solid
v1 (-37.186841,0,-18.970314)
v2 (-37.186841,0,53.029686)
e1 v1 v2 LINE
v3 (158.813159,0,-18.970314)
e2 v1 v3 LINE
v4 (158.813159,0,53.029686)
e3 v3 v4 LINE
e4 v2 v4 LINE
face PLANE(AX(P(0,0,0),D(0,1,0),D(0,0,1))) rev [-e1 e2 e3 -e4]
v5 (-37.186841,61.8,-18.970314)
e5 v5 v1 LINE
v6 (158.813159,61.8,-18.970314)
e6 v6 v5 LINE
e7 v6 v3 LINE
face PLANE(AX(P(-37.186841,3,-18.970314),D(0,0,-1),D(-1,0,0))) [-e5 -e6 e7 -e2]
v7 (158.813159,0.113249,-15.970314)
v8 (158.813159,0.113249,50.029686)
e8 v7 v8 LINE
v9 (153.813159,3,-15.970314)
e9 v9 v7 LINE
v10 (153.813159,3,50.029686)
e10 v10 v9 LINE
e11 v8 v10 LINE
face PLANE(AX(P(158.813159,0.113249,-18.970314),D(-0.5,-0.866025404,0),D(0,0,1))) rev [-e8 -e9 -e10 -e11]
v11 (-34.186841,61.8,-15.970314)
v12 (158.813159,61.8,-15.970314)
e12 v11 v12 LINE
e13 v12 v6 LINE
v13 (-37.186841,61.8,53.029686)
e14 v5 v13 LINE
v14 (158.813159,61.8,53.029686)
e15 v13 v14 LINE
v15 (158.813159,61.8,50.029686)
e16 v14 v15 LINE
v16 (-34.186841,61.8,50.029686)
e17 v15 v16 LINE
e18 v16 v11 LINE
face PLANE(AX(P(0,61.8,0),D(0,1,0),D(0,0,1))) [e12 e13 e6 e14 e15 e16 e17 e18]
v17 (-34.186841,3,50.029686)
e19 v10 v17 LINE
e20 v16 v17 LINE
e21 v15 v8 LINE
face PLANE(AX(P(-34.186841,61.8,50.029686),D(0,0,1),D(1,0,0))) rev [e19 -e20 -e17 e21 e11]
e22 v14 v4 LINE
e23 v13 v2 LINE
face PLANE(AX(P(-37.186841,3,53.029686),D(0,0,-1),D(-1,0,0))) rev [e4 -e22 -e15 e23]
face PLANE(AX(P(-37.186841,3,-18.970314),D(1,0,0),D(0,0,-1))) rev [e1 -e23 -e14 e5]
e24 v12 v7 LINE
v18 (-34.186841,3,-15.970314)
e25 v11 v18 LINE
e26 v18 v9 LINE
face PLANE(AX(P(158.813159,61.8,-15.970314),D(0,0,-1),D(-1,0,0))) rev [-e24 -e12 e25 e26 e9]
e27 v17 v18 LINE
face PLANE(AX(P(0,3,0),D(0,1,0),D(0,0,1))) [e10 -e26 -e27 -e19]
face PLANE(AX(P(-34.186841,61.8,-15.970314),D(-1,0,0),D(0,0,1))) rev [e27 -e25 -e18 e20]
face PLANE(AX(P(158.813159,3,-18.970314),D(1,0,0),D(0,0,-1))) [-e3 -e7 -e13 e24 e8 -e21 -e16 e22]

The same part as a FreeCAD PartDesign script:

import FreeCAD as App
import Part
import Sketcher


def edges_at(feature, points):
    """Names of the edges that pass closest to the given points."""
    edges = feature.Shape.Edges
    near = lambda p: min(range(len(edges)), key=lambda i: edges[i].distToShape(Part.Vertex(*p))[0])
    return sorted({f"Edge{near(p) + 1}" for p in points})


def add_polygon(sketch, points):
    """Adds a closed chain of lines whose ends are joined by coincident constraints."""
    first, n = sketch.GeometryCount, len(points)
    for a, b in zip(points, points[1:] + points[:1]):
        sketch.addGeometry(Part.LineSegment(App.Vector(*a, 0), App.Vector(*b, 0)), False)
    for i in range(n):
        sketch.addConstraint(Sketcher.Constraint("Coincident", first + i, 2, first + (i + 1) % n, 1))

doc = App.newDocument("Part")
body = doc.addObject("PartDesign::Body", "Body")

# Sketch on XZ plane
sketch1 = body.newObject("Sketcher::SketchObject", "Sketch")
sketch1.AttachmentSupport = (doc.getObject("XZ_Plane"), [""])
sketch1.MapMode = "FlatFace"
add_polygon(sketch1, [(-37.186841, -18.970314), (-37.186841, 53.029686), (158.813159, 53.029686), (158.813159, -18.970314)])  # lines 0-3
sketch1.addConstraint([
    Sketcher.Constraint("Vertical", 0),
    Sketcher.Constraint("Horizontal", 1),
    Sketcher.Constraint("Vertical", 2),
    Sketcher.Constraint("Horizontal", 3),
    Sketcher.Constraint("DistanceX", 1, 1, 1, 2, 196.0),
    Sketcher.Constraint("DistanceY", 0, 1, 0, 2, 72.0),
    Sketcher.Constraint("DistanceX", 0, 2, -1, 1, 37.186841),
    Sketcher.Constraint("DistanceY", -1, 1, 0, 2, 53.029686),
])
pad1 = body.newObject("PartDesign::Pad", "Pad")
pad1.Profile = sketch1
pad1.Length = 3
pad1.Reversed = True

# Sketch on XZ plane
sketch2 = body.newObject("Sketcher::SketchObject", "Sketch001")
sketch2.AttachmentSupport = (doc.getObject("XZ_Plane"), [""])
sketch2.MapMode = "FlatFace"
sketch2.AttachmentOffset = App.Placement(App.Vector(0, 0, -3), App.Rotation())
add_polygon(sketch2, [(158.813159, -18.970314), (-37.186841, -18.970314), (-37.186841, 53.029686), (158.813159, 53.029686), (158.813159, 50.029686), (-34.186841, 50.029686), (-34.186841, -15.970314), (158.813159, -15.970314)])  # lines 0-7
sketch2.addConstraint([
    Sketcher.Constraint("Horizontal", 0),
    Sketcher.Constraint("Vertical", 1),
    Sketcher.Constraint("Horizontal", 2),
    Sketcher.Constraint("Vertical", 3),
    Sketcher.Constraint("Horizontal", 4),
    Sketcher.Constraint("Vertical", 5),
    Sketcher.Constraint("Horizontal", 6),
    Sketcher.Constraint("Vertical", 7),
    Sketcher.Constraint("Vertical", 3, 2, 6, 2),
    Sketcher.Constraint("Equal", 3, 7),
    Sketcher.Constraint("DistanceX", 0, 2, 0, 1, 196.0),
    Sketcher.Constraint("DistanceX", 4, 2, 4, 1, 193.0),
    Sketcher.Constraint("DistanceY", 1, 1, 1, 2, 72.0),
    Sketcher.Constraint("DistanceY", 3, 2, 3, 1, 3.0),
    Sketcher.Constraint("DistanceX", 0, 2, -1, 1, 37.186841),
    Sketcher.Constraint("DistanceY", 0, 2, -1, 1, 18.970314),
])
pad2 = body.newObject("PartDesign::Pad", "Pad001")
pad2.Profile = sketch2
pad2.Length = 58.8
pad2.Reversed = True
doc.recompute()

chamfer = body.newObject("PartDesign::Chamfer", "Chamfer")
chamfer.Base = (pad2, edges_at(pad2, [(158.813, 3, 17.03)]))
chamfer.ChamferType = "Two distances"
chamfer.Size = 2.886751
chamfer.Size2 = 5
chamfer.FlipDirection = True

doc.recompute()
